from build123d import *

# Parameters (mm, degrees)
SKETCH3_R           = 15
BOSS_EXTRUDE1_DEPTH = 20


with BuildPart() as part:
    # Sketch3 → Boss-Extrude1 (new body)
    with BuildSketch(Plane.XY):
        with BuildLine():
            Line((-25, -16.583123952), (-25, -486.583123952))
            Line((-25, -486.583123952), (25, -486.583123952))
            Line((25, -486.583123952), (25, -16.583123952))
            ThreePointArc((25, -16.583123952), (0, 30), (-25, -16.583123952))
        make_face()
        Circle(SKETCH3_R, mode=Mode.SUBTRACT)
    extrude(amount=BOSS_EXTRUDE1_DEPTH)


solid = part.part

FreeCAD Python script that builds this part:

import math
import FreeCAD as App
import Part
import Sketcher

V = App.Vector
Q = App.Units.Quantity

doc = App.newDocument("Part")
body = doc.addObject("PartDesign::Body", "Body")

sketch1 = doc.addObject("Sketcher::SketchObject", "Sketch")
body.addObject(sketch1)
sketch1.AttachmentSupport = (doc.XY_Plane, [""])
sketch1.MapMode = "FlatFace"
sketch1.addGeometry([
    Part.LineSegment(V(-25, -17, 0), V(-25, -487, 0)),
    Part.LineSegment(V(-25, -487, 0), V(25, -487, 0)),
    Part.LineSegment(V(25, -487, 0), V(25, -17, 0)),
    Part.ArcOfCircle(Part.Circle(V(0, 0, 0), V(0, 0, 1), 30), math.radians(-34), math.radians(214)),
    Part.Circle(V(0, 0, 0), V(0, 0, 1), 15),
], False)
sketch1.addConstraint([
    Sketcher.Constraint("Coincident", 0, 2, 1, 1),
    Sketcher.Constraint("Coincident", 1, 2, 2, 1),
    Sketcher.Constraint("Coincident", 2, 2, 3, 1),
    Sketcher.Constraint("Coincident", 3, 2, 0, 1),
    Sketcher.Constraint("Vertical", 0),
    Sketcher.Constraint("Horizontal", 1),
    Sketcher.Constraint("Vertical", 2),
    Sketcher.Constraint("Coincident", 3, 3, -1, 1),
    Sketcher.Constraint("Coincident", 4, 3, -1, 1),
    Sketcher.Constraint("Horizontal", 2, 2, 3, 2),
    Sketcher.Constraint("Diameter", 4, Q("30 mm")),
    Sketcher.Constraint("Radius", 3, Q("30 mm")),
    Sketcher.Constraint("DistanceX", 1, 1, 1, 2, Q("50 mm")),
    Sketcher.Constraint("DistanceY", 0, 2, 0, 1, Q("470 mm")),
])
pad1 = doc.addObject("PartDesign::Pad", "Pad")
body.addObject(pad1)
pad1.Profile = sketch1
pad1.Length = 20

doc.recompute()
